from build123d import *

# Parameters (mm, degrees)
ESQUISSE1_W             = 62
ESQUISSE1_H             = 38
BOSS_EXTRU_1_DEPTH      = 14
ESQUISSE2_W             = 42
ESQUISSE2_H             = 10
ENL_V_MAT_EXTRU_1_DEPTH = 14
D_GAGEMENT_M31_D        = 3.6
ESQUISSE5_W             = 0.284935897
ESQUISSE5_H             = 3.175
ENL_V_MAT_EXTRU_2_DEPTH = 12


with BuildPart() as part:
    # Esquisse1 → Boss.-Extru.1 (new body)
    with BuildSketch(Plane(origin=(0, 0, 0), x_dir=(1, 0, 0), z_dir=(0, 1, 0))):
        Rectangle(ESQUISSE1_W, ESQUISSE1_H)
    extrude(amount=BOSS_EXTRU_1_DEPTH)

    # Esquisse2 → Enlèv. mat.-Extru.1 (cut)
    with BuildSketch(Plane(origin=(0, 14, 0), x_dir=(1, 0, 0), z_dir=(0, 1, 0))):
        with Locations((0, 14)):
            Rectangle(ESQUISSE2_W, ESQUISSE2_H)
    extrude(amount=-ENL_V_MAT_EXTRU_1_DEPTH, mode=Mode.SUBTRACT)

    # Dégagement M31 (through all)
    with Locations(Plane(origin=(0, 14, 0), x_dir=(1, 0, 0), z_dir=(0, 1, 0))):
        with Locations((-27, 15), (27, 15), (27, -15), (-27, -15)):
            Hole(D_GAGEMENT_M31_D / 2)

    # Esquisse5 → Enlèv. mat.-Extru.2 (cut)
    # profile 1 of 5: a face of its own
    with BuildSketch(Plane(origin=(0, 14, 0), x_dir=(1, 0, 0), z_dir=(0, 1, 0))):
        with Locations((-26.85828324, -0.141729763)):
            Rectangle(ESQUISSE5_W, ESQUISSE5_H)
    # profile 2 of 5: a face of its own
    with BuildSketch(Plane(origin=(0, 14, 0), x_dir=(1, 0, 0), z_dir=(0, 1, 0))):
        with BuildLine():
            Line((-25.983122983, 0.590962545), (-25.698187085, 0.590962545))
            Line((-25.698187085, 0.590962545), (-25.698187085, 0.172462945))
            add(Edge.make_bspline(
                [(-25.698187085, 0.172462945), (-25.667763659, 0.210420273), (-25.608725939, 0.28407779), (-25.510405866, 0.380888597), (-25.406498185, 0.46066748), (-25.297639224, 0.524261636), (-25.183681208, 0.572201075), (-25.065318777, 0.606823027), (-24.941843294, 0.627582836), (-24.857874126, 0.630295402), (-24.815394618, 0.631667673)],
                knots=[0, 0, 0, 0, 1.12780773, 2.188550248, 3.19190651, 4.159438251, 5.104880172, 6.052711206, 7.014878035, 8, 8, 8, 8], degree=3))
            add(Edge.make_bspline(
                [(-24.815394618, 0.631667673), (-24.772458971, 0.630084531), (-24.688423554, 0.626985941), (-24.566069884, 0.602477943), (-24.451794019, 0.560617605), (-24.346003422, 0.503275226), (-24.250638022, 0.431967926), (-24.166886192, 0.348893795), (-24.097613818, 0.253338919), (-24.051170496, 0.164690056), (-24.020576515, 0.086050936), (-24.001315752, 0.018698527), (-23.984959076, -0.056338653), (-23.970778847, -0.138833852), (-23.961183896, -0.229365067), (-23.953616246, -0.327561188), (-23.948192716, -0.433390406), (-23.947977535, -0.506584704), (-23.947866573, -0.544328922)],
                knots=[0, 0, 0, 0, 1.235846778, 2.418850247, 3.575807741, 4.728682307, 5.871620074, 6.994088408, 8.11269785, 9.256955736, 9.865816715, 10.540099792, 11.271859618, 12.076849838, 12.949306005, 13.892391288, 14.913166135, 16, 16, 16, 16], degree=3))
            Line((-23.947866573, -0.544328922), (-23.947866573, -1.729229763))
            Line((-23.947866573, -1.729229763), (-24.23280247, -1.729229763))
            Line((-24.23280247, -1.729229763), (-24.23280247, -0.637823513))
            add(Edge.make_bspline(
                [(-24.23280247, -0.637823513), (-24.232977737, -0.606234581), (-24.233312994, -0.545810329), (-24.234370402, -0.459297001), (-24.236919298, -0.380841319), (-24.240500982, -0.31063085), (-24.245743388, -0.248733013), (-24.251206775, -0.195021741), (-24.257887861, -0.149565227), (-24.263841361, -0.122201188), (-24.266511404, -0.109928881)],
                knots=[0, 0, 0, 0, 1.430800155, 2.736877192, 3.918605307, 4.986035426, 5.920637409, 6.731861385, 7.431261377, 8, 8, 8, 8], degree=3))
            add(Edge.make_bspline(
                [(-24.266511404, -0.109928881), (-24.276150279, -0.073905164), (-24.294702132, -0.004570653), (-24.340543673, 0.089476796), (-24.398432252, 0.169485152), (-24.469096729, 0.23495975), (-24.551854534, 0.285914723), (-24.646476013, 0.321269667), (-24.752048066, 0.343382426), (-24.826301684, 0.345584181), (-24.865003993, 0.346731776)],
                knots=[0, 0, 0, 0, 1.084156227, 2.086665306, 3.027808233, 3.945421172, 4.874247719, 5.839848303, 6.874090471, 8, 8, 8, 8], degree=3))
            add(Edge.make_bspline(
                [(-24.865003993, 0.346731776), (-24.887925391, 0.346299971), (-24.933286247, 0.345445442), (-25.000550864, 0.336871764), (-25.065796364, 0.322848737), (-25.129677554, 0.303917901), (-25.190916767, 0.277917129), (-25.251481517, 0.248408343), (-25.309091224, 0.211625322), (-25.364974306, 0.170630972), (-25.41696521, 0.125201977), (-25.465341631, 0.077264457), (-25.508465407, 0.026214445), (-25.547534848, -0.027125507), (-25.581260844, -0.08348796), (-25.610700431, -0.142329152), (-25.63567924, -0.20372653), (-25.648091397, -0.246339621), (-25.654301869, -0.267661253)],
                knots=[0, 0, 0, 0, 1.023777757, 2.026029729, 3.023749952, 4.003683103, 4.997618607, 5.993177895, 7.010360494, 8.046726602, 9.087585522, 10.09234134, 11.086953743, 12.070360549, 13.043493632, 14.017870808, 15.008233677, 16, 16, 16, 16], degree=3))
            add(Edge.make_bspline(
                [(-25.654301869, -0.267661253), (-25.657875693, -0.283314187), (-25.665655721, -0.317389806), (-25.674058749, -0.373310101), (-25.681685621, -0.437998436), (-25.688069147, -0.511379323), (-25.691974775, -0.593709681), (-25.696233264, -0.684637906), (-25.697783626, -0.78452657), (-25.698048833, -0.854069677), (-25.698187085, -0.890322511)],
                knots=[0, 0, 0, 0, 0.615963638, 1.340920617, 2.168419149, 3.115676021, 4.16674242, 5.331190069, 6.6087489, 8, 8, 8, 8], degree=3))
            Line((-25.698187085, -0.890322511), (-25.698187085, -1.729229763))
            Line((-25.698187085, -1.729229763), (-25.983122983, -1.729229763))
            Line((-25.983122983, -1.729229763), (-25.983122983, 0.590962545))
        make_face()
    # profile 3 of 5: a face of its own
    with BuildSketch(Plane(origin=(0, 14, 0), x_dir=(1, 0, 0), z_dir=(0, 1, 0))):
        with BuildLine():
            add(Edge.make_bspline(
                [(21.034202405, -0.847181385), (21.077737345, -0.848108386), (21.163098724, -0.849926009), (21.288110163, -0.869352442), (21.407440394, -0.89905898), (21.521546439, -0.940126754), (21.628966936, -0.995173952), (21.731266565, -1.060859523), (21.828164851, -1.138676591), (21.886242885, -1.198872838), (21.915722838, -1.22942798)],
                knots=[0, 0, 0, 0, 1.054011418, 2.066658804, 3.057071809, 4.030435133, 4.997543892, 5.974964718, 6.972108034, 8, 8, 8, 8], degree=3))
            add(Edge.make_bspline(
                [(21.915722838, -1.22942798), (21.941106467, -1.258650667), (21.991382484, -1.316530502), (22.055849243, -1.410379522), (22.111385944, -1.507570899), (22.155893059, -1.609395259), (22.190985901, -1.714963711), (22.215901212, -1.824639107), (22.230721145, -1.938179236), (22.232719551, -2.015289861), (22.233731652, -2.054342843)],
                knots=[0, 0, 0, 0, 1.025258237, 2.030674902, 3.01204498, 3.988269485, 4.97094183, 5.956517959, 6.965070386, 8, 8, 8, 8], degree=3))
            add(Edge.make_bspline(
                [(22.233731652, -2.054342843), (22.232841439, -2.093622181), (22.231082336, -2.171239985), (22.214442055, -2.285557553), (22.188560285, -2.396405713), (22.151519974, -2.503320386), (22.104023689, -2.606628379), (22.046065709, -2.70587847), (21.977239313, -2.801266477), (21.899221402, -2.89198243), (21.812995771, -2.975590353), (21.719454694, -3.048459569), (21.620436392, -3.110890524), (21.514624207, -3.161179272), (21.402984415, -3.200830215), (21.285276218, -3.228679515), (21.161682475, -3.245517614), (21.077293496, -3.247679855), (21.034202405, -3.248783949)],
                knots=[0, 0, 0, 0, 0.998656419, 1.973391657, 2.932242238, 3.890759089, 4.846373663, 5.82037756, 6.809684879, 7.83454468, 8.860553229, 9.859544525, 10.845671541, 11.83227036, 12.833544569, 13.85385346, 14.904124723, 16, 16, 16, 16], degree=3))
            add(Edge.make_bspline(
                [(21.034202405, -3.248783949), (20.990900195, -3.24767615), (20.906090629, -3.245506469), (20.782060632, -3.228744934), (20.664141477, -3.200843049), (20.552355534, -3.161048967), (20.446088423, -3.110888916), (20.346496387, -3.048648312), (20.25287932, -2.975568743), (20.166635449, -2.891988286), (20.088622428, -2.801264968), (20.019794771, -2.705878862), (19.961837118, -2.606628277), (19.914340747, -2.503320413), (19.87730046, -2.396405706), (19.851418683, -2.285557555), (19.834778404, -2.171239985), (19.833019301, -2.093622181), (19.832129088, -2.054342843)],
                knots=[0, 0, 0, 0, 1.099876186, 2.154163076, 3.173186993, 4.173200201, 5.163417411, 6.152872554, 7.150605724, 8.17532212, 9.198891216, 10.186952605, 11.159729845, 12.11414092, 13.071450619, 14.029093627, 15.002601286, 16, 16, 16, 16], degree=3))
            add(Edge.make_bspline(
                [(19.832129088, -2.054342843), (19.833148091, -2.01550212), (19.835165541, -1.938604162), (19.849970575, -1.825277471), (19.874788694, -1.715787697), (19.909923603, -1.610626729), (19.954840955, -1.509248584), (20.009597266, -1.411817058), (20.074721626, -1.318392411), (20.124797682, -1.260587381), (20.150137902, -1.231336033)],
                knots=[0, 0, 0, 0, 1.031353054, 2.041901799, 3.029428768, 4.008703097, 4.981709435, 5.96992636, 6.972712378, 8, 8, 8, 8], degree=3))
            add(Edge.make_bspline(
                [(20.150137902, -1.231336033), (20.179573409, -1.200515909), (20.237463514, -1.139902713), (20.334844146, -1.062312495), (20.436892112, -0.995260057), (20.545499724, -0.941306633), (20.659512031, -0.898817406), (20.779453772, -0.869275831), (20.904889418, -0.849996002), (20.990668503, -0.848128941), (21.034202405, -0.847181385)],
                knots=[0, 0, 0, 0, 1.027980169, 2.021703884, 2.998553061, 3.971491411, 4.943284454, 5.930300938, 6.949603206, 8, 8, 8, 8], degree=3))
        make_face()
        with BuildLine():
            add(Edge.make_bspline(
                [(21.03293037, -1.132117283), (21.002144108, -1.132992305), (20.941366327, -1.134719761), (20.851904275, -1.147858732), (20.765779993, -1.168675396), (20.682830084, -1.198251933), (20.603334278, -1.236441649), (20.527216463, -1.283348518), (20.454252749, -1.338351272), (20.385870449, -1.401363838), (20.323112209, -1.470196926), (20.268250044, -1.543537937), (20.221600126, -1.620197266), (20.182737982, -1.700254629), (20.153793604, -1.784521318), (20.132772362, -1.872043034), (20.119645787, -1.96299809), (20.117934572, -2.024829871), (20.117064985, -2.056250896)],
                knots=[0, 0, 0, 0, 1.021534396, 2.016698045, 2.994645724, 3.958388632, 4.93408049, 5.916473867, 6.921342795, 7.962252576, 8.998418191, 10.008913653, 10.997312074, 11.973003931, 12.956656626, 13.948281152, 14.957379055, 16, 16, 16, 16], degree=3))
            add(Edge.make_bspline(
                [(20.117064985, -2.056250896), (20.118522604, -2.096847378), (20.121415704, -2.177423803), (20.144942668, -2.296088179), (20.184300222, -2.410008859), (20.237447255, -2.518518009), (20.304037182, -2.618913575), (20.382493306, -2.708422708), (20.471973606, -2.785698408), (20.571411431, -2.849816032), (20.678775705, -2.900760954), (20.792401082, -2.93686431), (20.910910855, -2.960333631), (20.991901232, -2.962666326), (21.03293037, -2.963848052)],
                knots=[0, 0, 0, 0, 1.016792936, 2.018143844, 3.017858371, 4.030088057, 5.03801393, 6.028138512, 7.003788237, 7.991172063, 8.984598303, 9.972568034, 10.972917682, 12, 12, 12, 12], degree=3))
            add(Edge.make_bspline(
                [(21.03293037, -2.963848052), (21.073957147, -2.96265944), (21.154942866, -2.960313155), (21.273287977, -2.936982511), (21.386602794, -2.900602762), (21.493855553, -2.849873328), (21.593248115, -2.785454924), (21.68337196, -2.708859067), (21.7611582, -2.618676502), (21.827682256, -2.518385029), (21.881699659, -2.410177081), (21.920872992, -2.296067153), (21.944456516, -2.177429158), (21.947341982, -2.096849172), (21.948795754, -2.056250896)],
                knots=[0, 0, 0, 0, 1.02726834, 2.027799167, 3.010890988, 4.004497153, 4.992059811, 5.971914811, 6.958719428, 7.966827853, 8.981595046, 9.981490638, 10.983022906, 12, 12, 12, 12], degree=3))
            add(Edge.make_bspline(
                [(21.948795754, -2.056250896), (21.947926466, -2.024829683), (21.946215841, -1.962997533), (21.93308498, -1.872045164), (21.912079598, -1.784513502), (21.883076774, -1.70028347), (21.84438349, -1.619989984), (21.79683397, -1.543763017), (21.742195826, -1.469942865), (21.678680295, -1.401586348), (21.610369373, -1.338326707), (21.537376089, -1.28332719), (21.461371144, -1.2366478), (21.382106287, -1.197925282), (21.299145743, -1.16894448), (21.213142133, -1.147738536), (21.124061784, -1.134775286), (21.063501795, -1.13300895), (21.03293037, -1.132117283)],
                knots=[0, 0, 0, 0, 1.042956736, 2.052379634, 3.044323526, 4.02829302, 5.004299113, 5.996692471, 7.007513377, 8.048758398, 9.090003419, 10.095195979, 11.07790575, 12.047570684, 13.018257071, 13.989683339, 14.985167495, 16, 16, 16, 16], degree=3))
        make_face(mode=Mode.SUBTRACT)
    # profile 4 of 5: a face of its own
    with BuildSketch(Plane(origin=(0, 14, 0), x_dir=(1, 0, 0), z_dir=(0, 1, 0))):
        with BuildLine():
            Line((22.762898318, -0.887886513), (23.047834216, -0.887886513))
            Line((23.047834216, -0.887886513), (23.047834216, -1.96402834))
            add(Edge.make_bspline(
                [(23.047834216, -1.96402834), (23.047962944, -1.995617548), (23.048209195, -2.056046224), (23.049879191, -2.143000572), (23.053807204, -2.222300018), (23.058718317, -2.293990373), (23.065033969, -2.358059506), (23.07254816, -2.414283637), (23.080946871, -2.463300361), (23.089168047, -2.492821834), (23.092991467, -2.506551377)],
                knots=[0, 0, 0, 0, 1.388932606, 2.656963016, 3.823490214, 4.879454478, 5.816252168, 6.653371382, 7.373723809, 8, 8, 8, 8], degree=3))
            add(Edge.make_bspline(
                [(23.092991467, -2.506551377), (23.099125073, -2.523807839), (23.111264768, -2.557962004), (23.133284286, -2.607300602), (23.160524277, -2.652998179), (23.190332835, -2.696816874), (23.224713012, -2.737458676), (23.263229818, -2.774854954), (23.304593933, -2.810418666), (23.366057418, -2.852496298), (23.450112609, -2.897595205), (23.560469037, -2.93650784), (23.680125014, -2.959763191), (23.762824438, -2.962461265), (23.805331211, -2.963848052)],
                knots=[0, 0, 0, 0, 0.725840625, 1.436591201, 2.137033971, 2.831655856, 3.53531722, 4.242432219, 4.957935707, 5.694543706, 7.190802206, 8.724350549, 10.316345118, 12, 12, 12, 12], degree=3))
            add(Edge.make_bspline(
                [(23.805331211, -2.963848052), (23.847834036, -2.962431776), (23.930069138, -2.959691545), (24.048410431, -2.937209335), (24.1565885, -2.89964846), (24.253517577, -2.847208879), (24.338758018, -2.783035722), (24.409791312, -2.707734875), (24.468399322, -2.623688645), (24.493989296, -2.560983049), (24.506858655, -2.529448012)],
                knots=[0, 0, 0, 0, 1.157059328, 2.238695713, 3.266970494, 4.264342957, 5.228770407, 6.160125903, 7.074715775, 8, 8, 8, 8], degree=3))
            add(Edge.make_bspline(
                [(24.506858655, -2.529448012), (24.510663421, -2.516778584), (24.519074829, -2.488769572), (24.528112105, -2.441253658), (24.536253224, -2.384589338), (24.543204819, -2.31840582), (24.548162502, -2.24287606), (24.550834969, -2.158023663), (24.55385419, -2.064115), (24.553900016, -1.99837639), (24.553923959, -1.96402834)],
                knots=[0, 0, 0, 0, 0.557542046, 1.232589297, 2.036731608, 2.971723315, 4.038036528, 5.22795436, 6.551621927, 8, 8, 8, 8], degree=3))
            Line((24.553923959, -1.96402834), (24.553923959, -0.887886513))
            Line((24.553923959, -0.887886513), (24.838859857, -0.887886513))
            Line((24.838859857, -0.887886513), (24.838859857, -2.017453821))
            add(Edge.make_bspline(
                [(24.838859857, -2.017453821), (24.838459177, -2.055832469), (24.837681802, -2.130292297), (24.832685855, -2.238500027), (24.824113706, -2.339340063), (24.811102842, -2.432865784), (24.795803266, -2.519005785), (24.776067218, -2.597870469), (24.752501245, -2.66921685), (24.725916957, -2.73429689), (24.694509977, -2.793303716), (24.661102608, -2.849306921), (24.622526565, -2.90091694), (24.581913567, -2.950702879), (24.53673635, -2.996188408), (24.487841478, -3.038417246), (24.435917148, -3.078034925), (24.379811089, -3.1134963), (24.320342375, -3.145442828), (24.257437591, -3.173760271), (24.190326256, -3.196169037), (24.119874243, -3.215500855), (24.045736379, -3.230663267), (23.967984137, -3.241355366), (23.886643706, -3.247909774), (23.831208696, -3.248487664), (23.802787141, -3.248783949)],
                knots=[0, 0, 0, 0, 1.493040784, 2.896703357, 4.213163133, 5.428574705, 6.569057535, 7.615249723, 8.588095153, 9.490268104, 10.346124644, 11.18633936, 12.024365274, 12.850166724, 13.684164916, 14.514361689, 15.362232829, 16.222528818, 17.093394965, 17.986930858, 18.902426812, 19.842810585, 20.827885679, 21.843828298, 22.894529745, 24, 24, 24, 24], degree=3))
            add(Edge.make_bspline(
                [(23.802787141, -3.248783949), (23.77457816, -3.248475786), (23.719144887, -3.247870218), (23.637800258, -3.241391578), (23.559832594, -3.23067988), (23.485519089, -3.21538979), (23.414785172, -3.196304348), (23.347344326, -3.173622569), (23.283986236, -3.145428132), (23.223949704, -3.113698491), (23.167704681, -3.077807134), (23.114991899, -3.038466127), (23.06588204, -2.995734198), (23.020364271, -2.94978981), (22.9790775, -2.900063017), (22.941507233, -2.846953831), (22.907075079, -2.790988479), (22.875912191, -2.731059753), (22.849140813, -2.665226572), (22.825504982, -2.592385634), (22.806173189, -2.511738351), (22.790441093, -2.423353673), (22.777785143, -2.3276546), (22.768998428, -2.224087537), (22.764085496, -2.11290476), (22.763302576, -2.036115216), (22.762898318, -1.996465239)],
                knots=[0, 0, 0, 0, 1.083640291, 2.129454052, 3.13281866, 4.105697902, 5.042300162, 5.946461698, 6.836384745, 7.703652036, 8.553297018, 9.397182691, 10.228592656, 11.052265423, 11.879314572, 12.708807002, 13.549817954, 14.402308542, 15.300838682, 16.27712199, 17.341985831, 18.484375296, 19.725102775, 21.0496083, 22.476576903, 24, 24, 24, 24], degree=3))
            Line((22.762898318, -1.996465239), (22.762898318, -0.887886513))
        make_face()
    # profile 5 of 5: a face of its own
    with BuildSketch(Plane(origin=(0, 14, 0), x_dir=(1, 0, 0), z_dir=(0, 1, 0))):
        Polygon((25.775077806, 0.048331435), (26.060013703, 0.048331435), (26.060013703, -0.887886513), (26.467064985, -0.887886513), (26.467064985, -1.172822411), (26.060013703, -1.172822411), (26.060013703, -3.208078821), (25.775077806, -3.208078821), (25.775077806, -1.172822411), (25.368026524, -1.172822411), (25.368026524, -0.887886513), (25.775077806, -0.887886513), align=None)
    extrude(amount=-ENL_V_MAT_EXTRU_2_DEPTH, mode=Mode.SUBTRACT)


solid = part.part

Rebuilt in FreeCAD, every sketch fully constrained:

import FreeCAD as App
import Part
import Sketcher
Q = App.Units.Quantity

doc = App.newDocument("Part")
body = doc.addObject("PartDesign::Body", "Body")

# Sketch on XZ plane
sketch1 = body.newObject("Sketcher::SketchObject", "Sketch")
sketch1.AttachmentSupport = (doc.getObject("XZ_Plane"), [""])
sketch1.MapMode = "FlatFace"
sketch1.addGeometry([
    Part.LineSegment(App.Vector(-31, -19, 0), App.Vector(-31, 19, 0)),
    Part.LineSegment(App.Vector(-31, 19, 0), App.Vector(31, 19, 0)),
    Part.LineSegment(App.Vector(31, 19, 0), App.Vector(31, -19, 0)),
    Part.LineSegment(App.Vector(31, -19, 0), App.Vector(-31, -19, 0)),
], False)
sketch1.addConstraint([
    Sketcher.Constraint("Coincident", 0, 2, 1, 1),
    Sketcher.Constraint("Coincident", 1, 2, 2, 1),
    Sketcher.Constraint("Coincident", 2, 2, 3, 1),
    Sketcher.Constraint("Coincident", 3, 2, 0, 1),
    Sketcher.Constraint("Vertical", 0),
    Sketcher.Constraint("Horizontal", 1),
    Sketcher.Constraint("Vertical", 2),
    Sketcher.Constraint("Horizontal", 3),
    Sketcher.Constraint("Symmetric", 0, 2, 2, 2, -1, 1),
    Sketcher.Constraint("DistanceX", 1, 1, 1, 2, Q("62 mm")),
    Sketcher.Constraint("DistanceY", 0, 1, 0, 2, Q("38 mm")),
])
pad1 = body.newObject("PartDesign::Pad", "Pad")
pad1.Profile = sketch1
pad1.Length = 14
pad1.Reversed = True

# Sketch on XZ plane
sketch2 = body.newObject("Sketcher::SketchObject", "Sketch001")
sketch2.AttachmentSupport = (doc.getObject("XZ_Plane"), [""])
sketch2.MapMode = "FlatFace"
sketch2.AttachmentOffset = App.Placement(App.Vector(0, 0, -14), App.Rotation())
sketch2.addGeometry([
    Part.LineSegment(App.Vector(-21, -19, 0), App.Vector(-21, -9, 0)),
    Part.LineSegment(App.Vector(-21, -9, 0), App.Vector(21, -9, 0)),
    Part.LineSegment(App.Vector(21, -9, 0), App.Vector(21, -19, 0)),
    Part.LineSegment(App.Vector(21, -19, 0), App.Vector(-21, -19, 0)),
], False)
sketch2.addConstraint([
    Sketcher.Constraint("Coincident", 0, 2, 1, 1),
    Sketcher.Constraint("Coincident", 1, 2, 2, 1),
    Sketcher.Constraint("Coincident", 2, 2, 3, 1),
    Sketcher.Constraint("Coincident", 3, 2, 0, 1),
    Sketcher.Constraint("Vertical", 0),
    Sketcher.Constraint("Horizontal", 1),
    Sketcher.Constraint("Vertical", 2),
    Sketcher.Constraint("Horizontal", 3),
    Sketcher.Constraint("DistanceX", 1, 1, 1, 2, Q("42 mm")),
    Sketcher.Constraint("DistanceY", 0, 1, 0, 2, Q("10 mm")),
    Sketcher.Constraint("DistanceX", 0, 2, -1, 1, Q("21 mm")),
    Sketcher.Constraint("DistanceY", 0, 2, -1, 1, Q("9 mm")),
])
pocket1 = body.newObject("PartDesign::Pocket", "Pocket")
pocket1.Profile = sketch2
pocket1.Length = 14
pocket1.Reversed = True

# Sketch on XZ plane
sketch3 = body.newObject("Sketcher::SketchObject", "Sketch002")
sketch3.AttachmentSupport = (doc.getObject("XZ_Plane"), [""])
sketch3.MapMode = "FlatFace"
sketch3.AttachmentOffset = App.Placement(App.Vector(0, 0, -14), App.Rotation())
sketch3.addGeometry([
    Part.Circle(App.Vector(-27, -15, 0), App.Vector(0, 0, 1), 1.8),
    Part.Circle(App.Vector(27, -15, 0), App.Vector(0, 0, 1), 1.8),
    Part.Circle(App.Vector(27, 15, 0), App.Vector(0, 0, 1), 1.8),
    Part.Circle(App.Vector(-27, 15, 0), App.Vector(0, 0, 1), 1.8),
], False)
sketch3.addConstraint([
    Sketcher.Constraint("Equal", 0, 1),
    Sketcher.Constraint("Equal", 1, 2),
    Sketcher.Constraint("Equal", 2, 3),
    Sketcher.Constraint("Symmetric", 0, 3, 2, 3, -1, 1),
    Sketcher.Constraint("Symmetric", 1, 3, 3, 3, -1, 1),
    Sketcher.Constraint("Symmetric", 0, 3, 1, 3, -2),
    Sketcher.Constraint("Diameter", 0, Q("3.6 mm")),
    Sketcher.Constraint("DistanceX", 0, 3, -1, 1, Q("27 mm")),
    Sketcher.Constraint("DistanceY", 0, 3, -1, 1, Q("15 mm")),
])
doc.recompute()
hole = body.newObject("PartDesign::Hole", "Hole")
hole.Profile = sketch3
hole.ThreadType = "None"
hole.Diameter = 3.6
hole.DepthType = "ThroughAll"
hole.Reversed = True

# Sketch on XZ plane
sketch4 = body.newObject("Sketcher::SketchObject", "Sketch003")
sketch4.AttachmentSupport = (doc.getObject("XZ_Plane"), [""])
sketch4.MapMode = "FlatFace"
sketch4.AttachmentOffset = App.Placement(App.Vector(0, 0, -14), App.Rotation())
sketch4.addGeometry([
    Part.LineSegment(App.Vector(-27.000751, -1.44577, 0), App.Vector(-27.000751, 1.72923, 0)),  # 0
    Part.LineSegment(App.Vector(-27.000751, 1.72923, 0), App.Vector(-26.715815, 1.72923, 0)),  # 1
    Part.LineSegment(App.Vector(-26.715815, 1.72923, 0), App.Vector(-26.715815, -1.44577, 0)),  # 2
    Part.LineSegment(App.Vector(-26.715815, -1.44577, 0), App.Vector(-27.000751, -1.44577, 0)),  # 3
    Part.LineSegment(App.Vector(-25.698187, -0.590963, 0), App.Vector(-25.983123, -0.590963, 0)),  # 4
    Part.LineSegment(App.Vector(-25.983123, -0.590963, 0), App.Vector(-25.983123, 1.72923, 0)),  # 5
    Part.LineSegment(App.Vector(-25.983123, 1.72923, 0), App.Vector(-25.698187, 1.72923, 0)),  # 6
    Part.LineSegment(App.Vector(-25.698187, 1.72923, 0), App.Vector(-25.698187, 0.890323, 0)),  # 7
    Part.BSplineCurve([App.Vector(-25.654302, 0.267661, 0), App.Vector(-25.657876, 0.283314, 0), App.Vector(-25.665656, 0.31739, 0), App.Vector(-25.674059, 0.37331, 0), App.Vector(-25.681686, 0.437998, 0), App.Vector(-25.688069, 0.511379, 0), App.Vector(-25.691975, 0.59371, 0), App.Vector(-25.696233, 0.684638, 0), App.Vector(-25.697784, 0.784527, 0), App.Vector(-25.698049, 0.85407, 0), App.Vector(-25.698187, 0.890323, 0)], [4, 1, 1, 1, 1, 1, 1, 1, 4], [0, 0.615963638, 1.340920617, 2.168419149, 3.115676021, 4.16674242, 5.331190069, 6.6087489, 8], False, 3, [1, 1, 1, 1, 1, 1, 1, 1, 1, 1, 1], False),  # 8
    Part.BSplineCurve([App.Vector(-24.865004, -0.346732, 0), App.Vector(-24.887925, -0.3463, 0), App.Vector(-24.933286, -0.345445, 0), App.Vector(-25.000551, -0.336872, 0), App.Vector(-25.065796, -0.322849, 0), App.Vector(-25.129678, -0.303918, 0), App.Vector(-25.190917, -0.277917, 0), App.Vector(-25.251482, -0.248408, 0), App.Vector(-25.309091, -0.211625, 0), App.Vector(-25.364974, -0.170631, 0), App.Vector(-25.416965, -0.125202, 0), App.Vector(-25.465342, -0.077264, 0), App.Vector(-25.508465, -0.026214, 0), App.Vector(-25.547535, 0.027126, 0), App.Vector(-25.581261, 0.083488, 0), App.Vector(-25.6107, 0.142329, 0), App.Vector(-25.635679, 0.203727, 0), App.Vector(-25.648091, 0.24634, 0), App.Vector(-25.654302, 0.267661, 0)], [4, 1, 1, 1, 1, 1, 1, 1, 1, 1, 1, 1, 1, 1, 1, 1, 4], [0, 1.023777757, 2.026029729, 3.023749952, 4.003683103, 4.997618607, 5.993177895, 7.010360494, 8.046726602, 9.087585522, 10.09234134, 11.086953743, 12.070360549, 13.043493632, 14.017870808, 15.008233677, 16], False, 3, [1, 1, 1, 1, 1, 1, 1, 1, 1, 1, 1, 1, 1, 1, 1, 1, 1, 1, 1], False),  # 9
    Part.BSplineCurve([App.Vector(-24.266511, 0.109929, 0), App.Vector(-24.27615, 0.073905, 0), App.Vector(-24.294702, 0.004571, 0), App.Vector(-24.340544, -0.089477, 0), App.Vector(-24.398432, -0.169485, 0), App.Vector(-24.469097, -0.23496, 0), App.Vector(-24.551855, -0.285915, 0), App.Vector(-24.646476, -0.32127, 0), App.Vector(-24.752048, -0.343382, 0), App.Vector(-24.826302, -0.345584, 0), App.Vector(-24.865004, -0.346732, 0)], [4, 1, 1, 1, 1, 1, 1, 1, 4], [0, 1.084156227, 2.086665306, 3.027808233, 3.945421172, 4.874247719, 5.839848303, 6.874090471, 8], False, 3, [1, 1, 1, 1, 1, 1, 1, 1, 1, 1, 1], False),  # 10
    Part.BSplineCurve([App.Vector(-24.232802, 0.637824, 0), App.Vector(-24.232978, 0.606235, 0), App.Vector(-24.233313, 0.54581, 0), App.Vector(-24.23437, 0.459297, 0), App.Vector(-24.236919, 0.380841, 0), App.Vector(-24.240501, 0.310631, 0), App.Vector(-24.245743, 0.248733, 0), App.Vector(-24.251207, 0.195022, 0), App.Vector(-24.257888, 0.149565, 0), App.Vector(-24.263841, 0.122201, 0), App.Vector(-24.266511, 0.109929, 0)], [4, 1, 1, 1, 1, 1, 1, 1, 4], [0, 1.430800155, 2.736877192, 3.918605307, 4.986035426, 5.920637409, 6.731861385, 7.431261377, 8], False, 3, [1, 1, 1, 1, 1, 1, 1, 1, 1, 1, 1], False),  # 11
    Part.LineSegment(App.Vector(-24.232802, 0.637824, 0), App.Vector(-24.232802, 1.72923, 0)),  # 12
    Part.LineSegment(App.Vector(-24.232802, 1.72923, 0), App.Vector(-23.947867, 1.72923, 0)),  # 13
    Part.LineSegment(App.Vector(-23.947867, 1.72923, 0), App.Vector(-23.947867, 0.544329, 0)),  # 14
    Part.BSplineCurve([App.Vector(-24.815395, -0.631668, 0), App.Vector(-24.772459, -0.630085, 0), App.Vector(-24.688424, -0.626986, 0), App.Vector(-24.56607, -0.602478, 0), App.Vector(-24.451794, -0.560618, 0), App.Vector(-24.346003, -0.503275, 0), App.Vector(-24.250638, -0.431968, 0), App.Vector(-24.166886, -0.348894, 0), App.Vector(-24.097614, -0.253339, 0), App.Vector(-24.05117, -0.16469, 0), App.Vector(-24.020577, -0.086051, 0), App.Vector(-24.001316, -0.018699, 0), App.Vector(-23.984959, 0.056339, 0), App.Vector(-23.970779, 0.138834, 0), App.Vector(-23.961184, 0.229365, 0), App.Vector(-23.953616, 0.327561, 0), App.Vector(-23.948193, 0.43339, 0), App.Vector(-23.947978, 0.506585, 0), App.Vector(-23.947867, 0.544329, 0)], [4, 1, 1, 1, 1, 1, 1, 1, 1, 1, 1, 1, 1, 1, 1, 1, 4], [0, 1.235846778, 2.418850247, 3.575807741, 4.728682307, 5.871620074, 6.994088408, 8.11269785, 9.256955736, 9.865816715, 10.540099792, 11.271859618, 12.076849838, 12.949306005, 13.892391288, 14.913166135, 16], False, 3, [1, 1, 1, 1, 1, 1, 1, 1, 1, 1, 1, 1, 1, 1, 1, 1, 1, 1, 1], False),  # 15
    Part.BSplineCurve([App.Vector(-25.698187, -0.172463, 0), App.Vector(-25.667764, -0.21042, 0), App.Vector(-25.608726, -0.284078, 0), App.Vector(-25.510406, -0.380889, 0), App.Vector(-25.406498, -0.460667, 0), App.Vector(-25.297639, -0.524262, 0), App.Vector(-25.183681, -0.572201, 0), App.Vector(-25.065319, -0.606823, 0), App.Vector(-24.941843, -0.627583, 0), App.Vector(-24.857874, -0.630295, 0), App.Vector(-24.815395, -0.631668, 0)], [4, 1, 1, 1, 1, 1, 1, 1, 4], [0, 1.12780773, 2.188550248, 3.19190651, 4.159438251, 5.104880172, 6.052711206, 7.014878035, 8], False, 3, [1, 1, 1, 1, 1, 1, 1, 1, 1, 1, 1], False),  # 16
    Part.LineSegment(App.Vector(-25.698187, -0.172463, 0), App.Vector(-25.698187, -0.590963, 0)),  # 17
    Part.BSplineCurve([App.Vector(21.034202, 0.847181, 0), App.Vector(21.077737, 0.848108, 0), App.Vector(21.163099, 0.849926, 0), App.Vector(21.28811, 0.869352, 0), App.Vector(21.40744, 0.899059, 0), App.Vector(21.521546, 0.940127, 0), App.Vector(21.628967, 0.995174, 0), App.Vector(21.731267, 1.06086, 0), App.Vector(21.828165, 1.138677, 0), App.Vector(21.886243, 1.198873, 0), App.Vector(21.915723, 1.229428, 0)], [4, 1, 1, 1, 1, 1, 1, 1, 4], [0, 1.054011418, 2.066658804, 3.057071809, 4.030435133, 4.997543892, 5.974964718, 6.972108034, 8], False, 3, [1, 1, 1, 1, 1, 1, 1, 1, 1, 1, 1], False),  # 18
    Part.BSplineCurve([App.Vector(20.150138, 1.231336, 0), App.Vector(20.179573, 1.200516, 0), App.Vector(20.237464, 1.139903, 0), App.Vector(20.334844, 1.062312, 0), App.Vector(20.436892, 0.99526, 0), App.Vector(20.5455, 0.941307, 0), App.Vector(20.659512, 0.898817, 0), App.Vector(20.779454, 0.869276, 0), App.Vector(20.904889, 0.849996, 0), App.Vector(20.990669, 0.848129, 0), App.Vector(21.034202, 0.847181, 0)], [4, 1, 1, 1, 1, 1, 1, 1, 4], [0, 1.027980169, 2.021703884, 2.998553061, 3.971491411, 4.943284454, 5.930300938, 6.949603206, 8], False, 3, [1, 1, 1, 1, 1, 1, 1, 1, 1, 1, 1], False),  # 19
    Part.BSplineCurve([App.Vector(19.832129, 2.054343, 0), App.Vector(19.833148, 2.015502, 0), App.Vector(19.835166, 1.938604, 0), App.Vector(19.849971, 1.825277, 0), App.Vector(19.874789, 1.715788, 0), App.Vector(19.909924, 1.610627, 0), App.Vector(19.954841, 1.509249, 0), App.Vector(20.009597, 1.411817, 0), App.Vector(20.074722, 1.318392, 0), App.Vector(20.124798, 1.260587, 0), App.Vector(20.150138, 1.231336, 0)], [4, 1, 1, 1, 1, 1, 1, 1, 4], [0, 1.031353054, 2.041901799, 3.029428768, 4.008703097, 4.981709435, 5.96992636, 6.972712378, 8], False, 3, [1, 1, 1, 1, 1, 1, 1, 1, 1, 1, 1], False),  # 20
    Part.BSplineCurve([App.Vector(21.034202, 3.248784, 0), App.Vector(20.9909, 3.247676, 0), App.Vector(20.906091, 3.245506, 0), App.Vector(20.782061, 3.228745, 0), App.Vector(20.664141, 3.200843, 0), App.Vector(20.552356, 3.161049, 0), App.Vector(20.446088, 3.110889, 0), App.Vector(20.346496, 3.048648, 0), App.Vector(20.252879, 2.975569, 0), App.Vector(20.166635, 2.891988, 0), App.Vector(20.088622, 2.801265, 0), App.Vector(20.019795, 2.705879, 0), App.Vector(19.961837, 2.606628, 0), App.Vector(19.914341, 2.50332, 0), App.Vector(19.8773, 2.396406, 0), App.Vector(19.851419, 2.285558, 0), App.Vector(19.834778, 2.17124, 0), App.Vector(19.833019, 2.093622, 0), App.Vector(19.832129, 2.054343, 0)], [4, 1, 1, 1, 1, 1, 1, 1, 1, 1, 1, 1, 1, 1, 1, 1, 4], [0, 1.099876186, 2.154163076, 3.173186993, 4.173200201, 5.163417411, 6.152872554, 7.150605724, 8.17532212, 9.198891216, 10.186952605, 11.159729845, 12.11414092, 13.071450619, 14.029093627, 15.002601286, 16], False, 3, [1, 1, 1, 1, 1, 1, 1, 1, 1, 1, 1, 1, 1, 1, 1, 1, 1, 1, 1], False),  # 21
    Part.BSplineCurve([App.Vector(22.233732, 2.054343, 0), App.Vector(22.232841, 2.093622, 0), App.Vector(22.231082, 2.17124, 0), App.Vector(22.214442, 2.285558, 0), App.Vector(22.18856, 2.396406, 0), App.Vector(22.15152, 2.50332, 0), App.Vector(22.104024, 2.606628, 0), App.Vector(22.046066, 2.705878, 0), App.Vector(21.977239, 2.801266, 0), App.Vector(21.899221, 2.891982, 0), App.Vector(21.812996, 2.97559, 0), App.Vector(21.719455, 3.04846, 0), App.Vector(21.620436, 3.110891, 0), App.Vector(21.514624, 3.161179, 0), App.Vector(21.402984, 3.20083, 0), App.Vector(21.285276, 3.22868, 0), App.Vector(21.161682, 3.245518, 0), App.Vector(21.077293, 3.24768, 0), App.Vector(21.034202, 3.248784, 0)], [4, 1, 1, 1, 1, 1, 1, 1, 1, 1, 1, 1, 1, 1, 1, 1, 4], [0, 0.998656419, 1.973391657, 2.932242238, 3.890759089, 4.846373663, 5.82037756, 6.809684879, 7.83454468, 8.860553229, 9.859544525, 10.845671541, 11.83227036, 12.833544569, 13.85385346, 14.904124723, 16], False, 3, [1, 1, 1, 1, 1, 1, 1, 1, 1, 1, 1, 1, 1, 1, 1, 1, 1, 1, 1], False),  # 22
    Part.BSplineCurve([App.Vector(21.915723, 1.229428, 0), App.Vector(21.941106, 1.258651, 0), App.Vector(21.991382, 1.316531, 0), App.Vector(22.055849, 1.41038, 0), App.Vector(22.111386, 1.507571, 0), App.Vector(22.155893, 1.609395, 0), App.Vector(22.190986, 1.714964, 0), App.Vector(22.215901, 1.824639, 0), App.Vector(22.230721, 1.938179, 0), App.Vector(22.23272, 2.01529, 0), App.Vector(22.233732, 2.054343, 0)], [4, 1, 1, 1, 1, 1, 1, 1, 4], [0, 1.025258237, 2.030674902, 3.01204498, 3.988269485, 4.97094183, 5.956517959, 6.965070386, 8], False, 3, [1, 1, 1, 1, 1, 1, 1, 1, 1, 1, 1], False),  # 23
    Part.BSplineCurve([App.Vector(21.948796, 2.056251, 0), App.Vector(21.947926, 2.02483, 0), App.Vector(21.946216, 1.962998, 0), App.Vector(21.933085, 1.872045, 0), App.Vector(21.91208, 1.784514, 0), App.Vector(21.883077, 1.700283, 0), App.Vector(21.844383, 1.61999, 0), App.Vector(21.796834, 1.543763, 0), App.Vector(21.742196, 1.469943, 0), App.Vector(21.67868, 1.401586, 0), App.Vector(21.610369, 1.338327, 0), App.Vector(21.537376, 1.283327, 0), App.Vector(21.461371, 1.236648, 0), App.Vector(21.382106, 1.197925, 0), App.Vector(21.299146, 1.168944, 0), App.Vector(21.213142, 1.147739, 0), App.Vector(21.124062, 1.134775, 0), App.Vector(21.063502, 1.133009, 0), App.Vector(21.03293, 1.132117, 0)], [4, 1, 1, 1, 1, 1, 1, 1, 1, 1, 1, 1, 1, 1, 1, 1, 4], [0, 1.042956736, 2.052379634, 3.044323526, 4.02829302, 5.004299113, 5.996692471, 7.007513377, 8.048758398, 9.090003419, 10.095195979, 11.07790575, 12.047570684, 13.018257071, 13.989683339, 14.985167495, 16], False, 3, [1, 1, 1, 1, 1, 1, 1, 1, 1, 1, 1, 1, 1, 1, 1, 1, 1, 1, 1], False),  # 24
    Part.BSplineCurve([App.Vector(21.03293, 2.963848, 0), App.Vector(21.073957, 2.962659, 0), App.Vector(21.154943, 2.960313, 0), App.Vector(21.273288, 2.936983, 0), App.Vector(21.386603, 2.900603, 0), App.Vector(21.493856, 2.849873, 0), App.Vector(21.593248, 2.785455, 0), App.Vector(21.683372, 2.708859, 0), App.Vector(21.761158, 2.618677, 0), App.Vector(21.827682, 2.518385, 0), App.Vector(21.8817, 2.410177, 0), App.Vector(21.920873, 2.296067, 0), App.Vector(21.944457, 2.177429, 0), App.Vector(21.947342, 2.096849, 0), App.Vector(21.948796, 2.056251, 0)], [4, 1, 1, 1, 1, 1, 1, 1, 1, 1, 1, 1, 4], [0, 1.02726834, 2.027799167, 3.010890988, 4.004497153, 4.992059811, 5.971914811, 6.958719428, 7.966827853, 8.981595046, 9.981490638, 10.983022906, 12], False, 3, [1, 1, 1, 1, 1, 1, 1, 1, 1, 1, 1, 1, 1, 1, 1], False),  # 25
    Part.BSplineCurve([App.Vector(20.117065, 2.056251, 0), App.Vector(20.118523, 2.096847, 0), App.Vector(20.121416, 2.177424, 0), App.Vector(20.144943, 2.296088, 0), App.Vector(20.1843, 2.410009, 0), App.Vector(20.237447, 2.518518, 0), App.Vector(20.304037, 2.618914, 0), App.Vector(20.382493, 2.708423, 0), App.Vector(20.471974, 2.785698, 0), App.Vector(20.571411, 2.849816, 0), App.Vector(20.678776, 2.900761, 0), App.Vector(20.792401, 2.936864, 0), App.Vector(20.910911, 2.960334, 0), App.Vector(20.991901, 2.962666, 0), App.Vector(21.03293, 2.963848, 0)], [4, 1, 1, 1, 1, 1, 1, 1, 1, 1, 1, 1, 4], [0, 1.016792936, 2.018143844, 3.017858371, 4.030088057, 5.03801393, 6.028138512, 7.003788237, 7.991172063, 8.984598303, 9.972568034, 10.972917682, 12], False, 3, [1, 1, 1, 1, 1, 1, 1, 1, 1, 1, 1, 1, 1, 1, 1], False),  # 26
    Part.BSplineCurve([App.Vector(21.03293, 1.132117, 0), App.Vector(21.002144, 1.132992, 0), App.Vector(20.941366, 1.13472, 0), App.Vector(20.851904, 1.147859, 0), App.Vector(20.76578, 1.168675, 0), App.Vector(20.68283, 1.198252, 0), App.Vector(20.603334, 1.236442, 0), App.Vector(20.527216, 1.283349, 0), App.Vector(20.454253, 1.338351, 0), App.Vector(20.38587, 1.401364, 0), App.Vector(20.323112, 1.470197, 0), App.Vector(20.26825, 1.543538, 0), App.Vector(20.2216, 1.620197, 0), App.Vector(20.182738, 1.700255, 0), App.Vector(20.153794, 1.784521, 0), App.Vector(20.132772, 1.872043, 0), App.Vector(20.119646, 1.962998, 0), App.Vector(20.117935, 2.02483, 0), App.Vector(20.117065, 2.056251, 0)], [4, 1, 1, 1, 1, 1, 1, 1, 1, 1, 1, 1, 1, 1, 1, 1, 4], [0, 1.021534396, 2.016698045, 2.994645724, 3.958388632, 4.93408049, 5.916473867, 6.921342795, 7.962252576, 8.998418191, 10.008913653, 10.997312074, 11.973003931, 12.956656626, 13.948281152, 14.957379055, 16], False, 3, [1, 1, 1, 1, 1, 1, 1, 1, 1, 1, 1, 1, 1, 1, 1, 1, 1, 1, 1], False),  # 27
    Part.LineSegment(App.Vector(23.047834, 0.887887, 0), App.Vector(22.762898, 0.887887, 0)),  # 28
    Part.LineSegment(App.Vector(22.762898, 0.887887, 0), App.Vector(22.762898, 1.996465, 0)),  # 29
    Part.BSplineCurve([App.Vector(23.802787, 3.248784, 0), App.Vector(23.774578, 3.248476, 0), App.Vector(23.719145, 3.24787, 0), App.Vector(23.6378, 3.241392, 0), App.Vector(23.559833, 3.23068, 0), App.Vector(23.485519, 3.21539, 0), App.Vector(23.414785, 3.196304, 0), App.Vector(23.347344, 3.173623, 0), App.Vector(23.283986, 3.145428, 0), App.Vector(23.22395, 3.113698, 0), App.Vector(23.167705, 3.077807, 0), App.Vector(23.114992, 3.038466, 0), App.Vector(23.065882, 2.995734, 0), App.Vector(23.020364, 2.94979, 0), App.Vector(22.979077, 2.900063, 0), App.Vector(22.941507, 2.846954, 0), App.Vector(22.907075, 2.790988, 0), App.Vector(22.875912, 2.73106, 0), App.Vector(22.849141, 2.665227, 0), App.Vector(22.825505, 2.592386, 0), App.Vector(22.806173, 2.511738, 0), App.Vector(22.790441, 2.423354, 0), App.Vector(22.777785, 2.327655, 0), App.Vector(22.768998, 2.224088, 0), App.Vector(22.764085, 2.112905, 0), App.Vector(22.763303, 2.036115, 0), App.Vector(22.762898, 1.996465, 0)], [4, 1, 1, 1, 1, 1, 1, 1, 1, 1, 1, 1, 1, 1, 1, 1, 1, 1, 1, 1, 1, 1, 1, 1, 4], [0, 1.083640291, 2.129454052, 3.13281866, 4.105697902, 5.042300162, 5.946461698, 6.836384745, 7.703652036, 8.553297018, 9.397182691, 10.228592656, 11.052265423, 11.879314572, 12.708807002, 13.549817954, 14.402308542, 15.300838682, 16.27712199, 17.341985831, 18.484375296, 19.725102775, 21.0496083, 22.476576903, 24], False, 3, [1, 1, 1, 1, 1, 1, 1, 1, 1, 1, 1, 1, 1, 1, 1, 1, 1, 1, 1, 1, 1, 1, 1, 1, 1, 1, 1], False),  # 30
    Part.BSplineCurve([App.Vector(24.83886, 2.017454, 0), App.Vector(24.838459, 2.055832, 0), App.Vector(24.837682, 2.130292, 0), App.Vector(24.832686, 2.2385, 0), App.Vector(24.824114, 2.33934, 0), App.Vector(24.811103, 2.432866, 0), App.Vector(24.795803, 2.519006, 0), App.Vector(24.776067, 2.59787, 0), App.Vector(24.752501, 2.669217, 0), App.Vector(24.725917, 2.734297, 0), App.Vector(24.69451, 2.793304, 0), App.Vector(24.661103, 2.849307, 0), App.Vector(24.622527, 2.900917, 0), App.Vector(24.581914, 2.950703, 0), App.Vector(24.536736, 2.996188, 0), App.Vector(24.487841, 3.038417, 0), App.Vector(24.435917, 3.078035, 0), App.Vector(24.379811, 3.113496, 0), App.Vector(24.320342, 3.145443, 0), App.Vector(24.257438, 3.17376, 0), App.Vector(24.190326, 3.196169, 0), App.Vector(24.119874, 3.215501, 0), App.Vector(24.045736, 3.230663, 0), App.Vector(23.967984, 3.241355, 0), App.Vector(23.886644, 3.24791, 0), App.Vector(23.831209, 3.248488, 0), App.Vector(23.802787, 3.248784, 0)], [4, 1, 1, 1, 1, 1, 1, 1, 1, 1, 1, 1, 1, 1, 1, 1, 1, 1, 1, 1, 1, 1, 1, 1, 4], [0, 1.493040784, 2.896703357, 4.213163133, 5.428574705, 6.569057535, 7.615249723, 8.588095153, 9.490268104, 10.346124644, 11.18633936, 12.024365274, 12.850166724, 13.684164916, 14.514361689, 15.362232829, 16.222528818, 17.093394965, 17.986930858, 18.902426812, 19.842810585, 20.827885679, 21.843828298, 22.894529745, 24], False, 3, [1, 1, 1, 1, 1, 1, 1, 1, 1, 1, 1, 1, 1, 1, 1, 1, 1, 1, 1, 1, 1, 1, 1, 1, 1, 1, 1], False),  # 31
    Part.LineSegment(App.Vector(24.83886, 2.017454, 0), App.Vector(24.83886, 0.887887, 0)),  # 32
    Part.LineSegment(App.Vector(24.83886, 0.887887, 0), App.Vector(24.553924, 0.887887, 0)),  # 33
    Part.LineSegment(App.Vector(24.553924, 0.887887, 0), App.Vector(24.553924, 1.964028, 0)),  # 34
    Part.BSplineCurve([App.Vector(24.506859, 2.529448, 0), App.Vector(24.510663, 2.516779, 0), App.Vector(24.519075, 2.48877, 0), App.Vector(24.528112, 2.441254, 0), App.Vector(24.536253, 2.384589, 0), App.Vector(24.543205, 2.318406, 0), App.Vector(24.548163, 2.242876, 0), App.Vector(24.550835, 2.158024, 0), App.Vector(24.553854, 2.064115, 0), App.Vector(24.5539, 1.998376, 0), App.Vector(24.553924, 1.964028, 0)], [4, 1, 1, 1, 1, 1, 1, 1, 4], [0, 0.557542046, 1.232589297, 2.036731608, 2.971723315, 4.038036528, 5.22795436, 6.551621927, 8], False, 3, [1, 1, 1, 1, 1, 1, 1, 1, 1, 1, 1], False),  # 35
    Part.BSplineCurve([App.Vector(23.805331, 2.963848, 0), App.Vector(23.847834, 2.962432, 0), App.Vector(23.930069, 2.959692, 0), App.Vector(24.04841, 2.937209, 0), App.Vector(24.156589, 2.899648, 0), App.Vector(24.253518, 2.847209, 0), App.Vector(24.338758, 2.783036, 0), App.Vector(24.409791, 2.707735, 0), App.Vector(24.468399, 2.623689, 0), App.Vector(24.493989, 2.560983, 0), App.Vector(24.506859, 2.529448, 0)], [4, 1, 1, 1, 1, 1, 1, 1, 4], [0, 1.157059328, 2.238695713, 3.266970494, 4.264342957, 5.228770407, 6.160125903, 7.074715775, 8], False, 3, [1, 1, 1, 1, 1, 1, 1, 1, 1, 1, 1], False),  # 36
    Part.BSplineCurve([App.Vector(23.092991, 2.506551, 0), App.Vector(23.099125, 2.523808, 0), App.Vector(23.111265, 2.557962, 0), App.Vector(23.133284, 2.607301, 0), App.Vector(23.160524, 2.652998, 0), App.Vector(23.190333, 2.696817, 0), App.Vector(23.224713, 2.737459, 0), App.Vector(23.26323, 2.774855, 0), App.Vector(23.304594, 2.810419, 0), App.Vector(23.366057, 2.852496, 0), App.Vector(23.450113, 2.897595, 0), App.Vector(23.560469, 2.936508, 0), App.Vector(23.680125, 2.959763, 0), App.Vector(23.762824, 2.962461, 0), App.Vector(23.805331, 2.963848, 0)], [4, 1, 1, 1, 1, 1, 1, 1, 1, 1, 1, 1, 4], [0, 0.725840625, 1.436591201, 2.137033971, 2.831655856, 3.53531722, 4.242432219, 4.957935707, 5.694543706, 7.190802206, 8.724350549, 10.316345118, 12], False, 3, [1, 1, 1, 1, 1, 1, 1, 1, 1, 1, 1, 1, 1, 1, 1], False),  # 37
    Part.BSplineCurve([App.Vector(23.047834, 1.964028, 0), App.Vector(23.047963, 1.995618, 0), App.Vector(23.048209, 2.056046, 0), App.Vector(23.049879, 2.143001, 0), App.Vector(23.053807, 2.2223, 0), App.Vector(23.058718, 2.29399, 0), App.Vector(23.065034, 2.35806, 0), App.Vector(23.072548, 2.414284, 0), App.Vector(23.080947, 2.4633, 0), App.Vector(23.089168, 2.492822, 0), App.Vector(23.092991, 2.506551, 0)], [4, 1, 1, 1, 1, 1, 1, 1, 4], [0, 1.388932606, 2.656963016, 3.823490214, 4.879454478, 5.816252168, 6.653371382, 7.373723809, 8], False, 3, [1, 1, 1, 1, 1, 1, 1, 1, 1, 1, 1], False),  # 38
    Part.LineSegment(App.Vector(23.047834, 1.964028, 0), App.Vector(23.047834, 0.887887, 0)),  # 39
    Part.LineSegment(App.Vector(26.060014, -0.048331, 0), App.Vector(25.775078, -0.048331, 0)),  # 40
    Part.LineSegment(App.Vector(25.775078, -0.048331, 0), App.Vector(25.775078, 0.887887, 0)),  # 41
    Part.LineSegment(App.Vector(25.775078, 0.887887, 0), App.Vector(25.368027, 0.887887, 0)),  # 42
    Part.LineSegment(App.Vector(25.368027, 0.887887, 0), App.Vector(25.368027, 1.172822, 0)),  # 43
    Part.LineSegment(App.Vector(25.368027, 1.172822, 0), App.Vector(25.775078, 1.172822, 0)),  # 44
    Part.LineSegment(App.Vector(25.775078, 1.172822, 0), App.Vector(25.775078, 3.208079, 0)),  # 45
    Part.LineSegment(App.Vector(25.775078, 3.208079, 0), App.Vector(26.060014, 3.208079, 0)),  # 46
    Part.LineSegment(App.Vector(26.060014, 3.208079, 0), App.Vector(26.060014, 1.172822, 0)),  # 47
    Part.LineSegment(App.Vector(26.060014, 1.172822, 0), App.Vector(26.467065, 1.172822, 0)),  # 48
    Part.LineSegment(App.Vector(26.467065, 1.172822, 0), App.Vector(26.467065, 0.887887, 0)),  # 49
    Part.LineSegment(App.Vector(26.467065, 0.887887, 0), App.Vector(26.060014, 0.887887, 0)),  # 50
    Part.LineSegment(App.Vector(26.060014, 0.887887, 0), App.Vector(26.060014, -0.048331, 0)),  # 51
], False)
sketch4.addConstraint([
    Sketcher.Constraint("Block", 8),
    Sketcher.Constraint("Block", 9),
    Sketcher.Constraint("Block", 10),
    Sketcher.Constraint("Block", 11),
    Sketcher.Constraint("Block", 15),
    Sketcher.Constraint("Block", 16),
    Sketcher.Constraint("Block", 18),
    Sketcher.Constraint("Block", 19),
    Sketcher.Constraint("Block", 20),
    Sketcher.Constraint("Block", 21),
    Sketcher.Constraint("Block", 22),
    Sketcher.Constraint("Block", 23),
    Sketcher.Constraint("Block", 24),
    Sketcher.Constraint("Block", 25),
    Sketcher.Constraint("Block", 26),
    Sketcher.Constraint("Block", 27),
    Sketcher.Constraint("Block", 30),
    Sketcher.Constraint("Block", 31),
    Sketcher.Constraint("Block", 35),
    Sketcher.Constraint("Block", 36),
    Sketcher.Constraint("Block", 37),
    Sketcher.Constraint("Block", 38),
    Sketcher.Constraint("Coincident", 0, 2, 1, 1),
    Sketcher.Constraint("Coincident", 1, 2, 2, 1),
    Sketcher.Constraint("Coincident", 2, 2, 3, 1),
    Sketcher.Constraint("Coincident", 3, 2, 0, 1),
    Sketcher.Constraint("Coincident", 4, 2, 5, 1),
    Sketcher.Constraint("Coincident", 5, 2, 6, 1),
    Sketcher.Constraint("Coincident", 6, 2, 7, 1),
    Sketcher.Constraint("Coincident", 7, 2, 8, 2),
    Sketcher.Constraint("Coincident", 11, 1, 12, 1),
    Sketcher.Constraint("Coincident", 12, 2, 13, 1),
    Sketcher.Constraint("Coincident", 13, 2, 14, 1),
    Sketcher.Constraint("Coincident", 14, 2, 15, 2),
    Sketcher.Constraint("Coincident", 16, 1, 17, 1),
    Sketcher.Constraint("Coincident", 17, 2, 4, 1),
    Sketcher.Constraint("Coincident", 28, 2, 29, 1),
    Sketcher.Constraint("Coincident", 29, 2, 30, 2),
    Sketcher.Constraint("Coincident", 31, 1, 32, 1),
    Sketcher.Constraint("Coincident", 32, 2, 33, 1),
    Sketcher.Constraint("Coincident", 33, 2, 34, 1),
    Sketcher.Constraint("Coincident", 34, 2, 35, 2),
    Sketcher.Constraint("Coincident", 38, 1, 39, 1),
    Sketcher.Constraint("Coincident", 39, 2, 28, 1),
    Sketcher.Constraint("Coincident", 40, 2, 41, 1),
    Sketcher.Constraint("Coincident", 41, 2, 42, 1),
    Sketcher.Constraint("Coincident", 42, 2, 43, 1),
    Sketcher.Constraint("Coincident", 43, 2, 44, 1),
    Sketcher.Constraint("Coincident", 44, 2, 45, 1),
    Sketcher.Constraint("Coincident", 45, 2, 46, 1),
    Sketcher.Constraint("Coincident", 46, 2, 47, 1),
    Sketcher.Constraint("Coincident", 47, 2, 48, 1),
    Sketcher.Constraint("Coincident", 48, 2, 49, 1),
    Sketcher.Constraint("Coincident", 49, 2, 50, 1),
    Sketcher.Constraint("Coincident", 50, 2, 51, 1),
    Sketcher.Constraint("Coincident", 51, 2, 40, 1),
    Sketcher.Constraint("Vertical", 0),
    Sketcher.Constraint("Horizontal", 1),
    Sketcher.Constraint("Vertical", 2),
    Sketcher.Constraint("Horizontal", 3),
    Sketcher.Constraint("Horizontal", 4),
    Sketcher.Constraint("Vertical", 5),
    Sketcher.Constraint("Horizontal", 6),
    Sketcher.Constraint("Vertical", 7),
    Sketcher.Constraint("Vertical", 12),
    Sketcher.Constraint("Horizontal", 13),
    Sketcher.Constraint("Vertical", 14),
    Sketcher.Constraint("Vertical", 17),
    Sketcher.Constraint("Horizontal", 28),
    Sketcher.Constraint("Vertical", 29),
    Sketcher.Constraint("Vertical", 32),
    Sketcher.Constraint("Horizontal", 33),
    Sketcher.Constraint("Vertical", 34),
    Sketcher.Constraint("Vertical", 39),
    Sketcher.Constraint("Horizontal", 40),
    Sketcher.Constraint("Vertical", 41),
    Sketcher.Constraint("Horizontal", 42),
    Sketcher.Constraint("Vertical", 43),
    Sketcher.Constraint("Horizontal", 44),
    Sketcher.Constraint("Vertical", 45),
    Sketcher.Constraint("Horizontal", 46),
    Sketcher.Constraint("Vertical", 47),
    Sketcher.Constraint("Horizontal", 48),
    Sketcher.Constraint("Vertical", 49),
    Sketcher.Constraint("Horizontal", 50),
    Sketcher.Constraint("Vertical", 51),
    Sketcher.Constraint("DistanceY", 0, 1, 0, 2, Q("3.175 mm")),
    Sketcher.Constraint("DistanceY", 14, 2, 14, 1, Q("1.184901 mm")),
    Sketcher.Constraint("DistanceY", 17, 2, 17, 1, Q("0.4185 mm")),
    Sketcher.Constraint("DistanceY", 2, 2, 5, 2, Q("3.175 mm")),
    Sketcher.Constraint("DistanceX", 42, 2, 42, 1, Q("0.407051 mm")),
    Sketcher.Constraint("DistanceX", 44, 1, 44, 2, Q("0.407051 mm")),
    Sketcher.Constraint("DistanceX", 48, 1, 48, 2, Q("0.407051 mm")),
    Sketcher.Constraint("DistanceX", 50, 2, 50, 1, Q("0.407051 mm")),
    Sketcher.Constraint("DistanceY", 29, 1, 29, 2, Q("1.108579 mm")),
    Sketcher.Constraint("DistanceY", 34, 1, 34, 2, Q("1.076142 mm")),
    Sketcher.Constraint("DistanceY", 14, 2, 6, 2, Q("1.184901 mm")),
    Sketcher.Constraint("DistanceX", 1, 1, 1, 2, Q("0.284936 mm")),
    Sketcher.Constraint("DistanceX", 4, 2, 4, 1, Q("0.284936 mm")),
    Sketcher.Constraint("DistanceX", 40, 2, 40, 1, Q("0.284936 mm")),
    Sketcher.Constraint("DistanceY", 41, 1, 41, 2, Q("0.936218 mm")),
    Sketcher.Constraint("DistanceY", 43, 1, 43, 2, Q("0.284936 mm")),
    Sketcher.Constraint("DistanceY", 45, 1, 45, 2, Q("2.035256 mm")),
    Sketcher.Constraint("DistanceY", 47, 2, 47, 1, Q("2.035256 mm")),
    Sketcher.Constraint("DistanceY", 49, 2, 49, 1, Q("0.284936 mm")),
    Sketcher.Constraint("DistanceX", 0, 2, -1, 1, Q("27.000751 mm")),
    Sketcher.Constraint("DistanceY", 40, 2, -1, 1, Q("0.048331 mm")),
    Sketcher.Constraint("DistanceX", 28, 2, 40, 2, Q("3.012179 mm")),
])
pocket2 = body.newObject("PartDesign::Pocket", "Pocket001")
pocket2.Profile = sketch4
pocket2.Length = 12
pocket2.Reversed = True

doc.recompute()
